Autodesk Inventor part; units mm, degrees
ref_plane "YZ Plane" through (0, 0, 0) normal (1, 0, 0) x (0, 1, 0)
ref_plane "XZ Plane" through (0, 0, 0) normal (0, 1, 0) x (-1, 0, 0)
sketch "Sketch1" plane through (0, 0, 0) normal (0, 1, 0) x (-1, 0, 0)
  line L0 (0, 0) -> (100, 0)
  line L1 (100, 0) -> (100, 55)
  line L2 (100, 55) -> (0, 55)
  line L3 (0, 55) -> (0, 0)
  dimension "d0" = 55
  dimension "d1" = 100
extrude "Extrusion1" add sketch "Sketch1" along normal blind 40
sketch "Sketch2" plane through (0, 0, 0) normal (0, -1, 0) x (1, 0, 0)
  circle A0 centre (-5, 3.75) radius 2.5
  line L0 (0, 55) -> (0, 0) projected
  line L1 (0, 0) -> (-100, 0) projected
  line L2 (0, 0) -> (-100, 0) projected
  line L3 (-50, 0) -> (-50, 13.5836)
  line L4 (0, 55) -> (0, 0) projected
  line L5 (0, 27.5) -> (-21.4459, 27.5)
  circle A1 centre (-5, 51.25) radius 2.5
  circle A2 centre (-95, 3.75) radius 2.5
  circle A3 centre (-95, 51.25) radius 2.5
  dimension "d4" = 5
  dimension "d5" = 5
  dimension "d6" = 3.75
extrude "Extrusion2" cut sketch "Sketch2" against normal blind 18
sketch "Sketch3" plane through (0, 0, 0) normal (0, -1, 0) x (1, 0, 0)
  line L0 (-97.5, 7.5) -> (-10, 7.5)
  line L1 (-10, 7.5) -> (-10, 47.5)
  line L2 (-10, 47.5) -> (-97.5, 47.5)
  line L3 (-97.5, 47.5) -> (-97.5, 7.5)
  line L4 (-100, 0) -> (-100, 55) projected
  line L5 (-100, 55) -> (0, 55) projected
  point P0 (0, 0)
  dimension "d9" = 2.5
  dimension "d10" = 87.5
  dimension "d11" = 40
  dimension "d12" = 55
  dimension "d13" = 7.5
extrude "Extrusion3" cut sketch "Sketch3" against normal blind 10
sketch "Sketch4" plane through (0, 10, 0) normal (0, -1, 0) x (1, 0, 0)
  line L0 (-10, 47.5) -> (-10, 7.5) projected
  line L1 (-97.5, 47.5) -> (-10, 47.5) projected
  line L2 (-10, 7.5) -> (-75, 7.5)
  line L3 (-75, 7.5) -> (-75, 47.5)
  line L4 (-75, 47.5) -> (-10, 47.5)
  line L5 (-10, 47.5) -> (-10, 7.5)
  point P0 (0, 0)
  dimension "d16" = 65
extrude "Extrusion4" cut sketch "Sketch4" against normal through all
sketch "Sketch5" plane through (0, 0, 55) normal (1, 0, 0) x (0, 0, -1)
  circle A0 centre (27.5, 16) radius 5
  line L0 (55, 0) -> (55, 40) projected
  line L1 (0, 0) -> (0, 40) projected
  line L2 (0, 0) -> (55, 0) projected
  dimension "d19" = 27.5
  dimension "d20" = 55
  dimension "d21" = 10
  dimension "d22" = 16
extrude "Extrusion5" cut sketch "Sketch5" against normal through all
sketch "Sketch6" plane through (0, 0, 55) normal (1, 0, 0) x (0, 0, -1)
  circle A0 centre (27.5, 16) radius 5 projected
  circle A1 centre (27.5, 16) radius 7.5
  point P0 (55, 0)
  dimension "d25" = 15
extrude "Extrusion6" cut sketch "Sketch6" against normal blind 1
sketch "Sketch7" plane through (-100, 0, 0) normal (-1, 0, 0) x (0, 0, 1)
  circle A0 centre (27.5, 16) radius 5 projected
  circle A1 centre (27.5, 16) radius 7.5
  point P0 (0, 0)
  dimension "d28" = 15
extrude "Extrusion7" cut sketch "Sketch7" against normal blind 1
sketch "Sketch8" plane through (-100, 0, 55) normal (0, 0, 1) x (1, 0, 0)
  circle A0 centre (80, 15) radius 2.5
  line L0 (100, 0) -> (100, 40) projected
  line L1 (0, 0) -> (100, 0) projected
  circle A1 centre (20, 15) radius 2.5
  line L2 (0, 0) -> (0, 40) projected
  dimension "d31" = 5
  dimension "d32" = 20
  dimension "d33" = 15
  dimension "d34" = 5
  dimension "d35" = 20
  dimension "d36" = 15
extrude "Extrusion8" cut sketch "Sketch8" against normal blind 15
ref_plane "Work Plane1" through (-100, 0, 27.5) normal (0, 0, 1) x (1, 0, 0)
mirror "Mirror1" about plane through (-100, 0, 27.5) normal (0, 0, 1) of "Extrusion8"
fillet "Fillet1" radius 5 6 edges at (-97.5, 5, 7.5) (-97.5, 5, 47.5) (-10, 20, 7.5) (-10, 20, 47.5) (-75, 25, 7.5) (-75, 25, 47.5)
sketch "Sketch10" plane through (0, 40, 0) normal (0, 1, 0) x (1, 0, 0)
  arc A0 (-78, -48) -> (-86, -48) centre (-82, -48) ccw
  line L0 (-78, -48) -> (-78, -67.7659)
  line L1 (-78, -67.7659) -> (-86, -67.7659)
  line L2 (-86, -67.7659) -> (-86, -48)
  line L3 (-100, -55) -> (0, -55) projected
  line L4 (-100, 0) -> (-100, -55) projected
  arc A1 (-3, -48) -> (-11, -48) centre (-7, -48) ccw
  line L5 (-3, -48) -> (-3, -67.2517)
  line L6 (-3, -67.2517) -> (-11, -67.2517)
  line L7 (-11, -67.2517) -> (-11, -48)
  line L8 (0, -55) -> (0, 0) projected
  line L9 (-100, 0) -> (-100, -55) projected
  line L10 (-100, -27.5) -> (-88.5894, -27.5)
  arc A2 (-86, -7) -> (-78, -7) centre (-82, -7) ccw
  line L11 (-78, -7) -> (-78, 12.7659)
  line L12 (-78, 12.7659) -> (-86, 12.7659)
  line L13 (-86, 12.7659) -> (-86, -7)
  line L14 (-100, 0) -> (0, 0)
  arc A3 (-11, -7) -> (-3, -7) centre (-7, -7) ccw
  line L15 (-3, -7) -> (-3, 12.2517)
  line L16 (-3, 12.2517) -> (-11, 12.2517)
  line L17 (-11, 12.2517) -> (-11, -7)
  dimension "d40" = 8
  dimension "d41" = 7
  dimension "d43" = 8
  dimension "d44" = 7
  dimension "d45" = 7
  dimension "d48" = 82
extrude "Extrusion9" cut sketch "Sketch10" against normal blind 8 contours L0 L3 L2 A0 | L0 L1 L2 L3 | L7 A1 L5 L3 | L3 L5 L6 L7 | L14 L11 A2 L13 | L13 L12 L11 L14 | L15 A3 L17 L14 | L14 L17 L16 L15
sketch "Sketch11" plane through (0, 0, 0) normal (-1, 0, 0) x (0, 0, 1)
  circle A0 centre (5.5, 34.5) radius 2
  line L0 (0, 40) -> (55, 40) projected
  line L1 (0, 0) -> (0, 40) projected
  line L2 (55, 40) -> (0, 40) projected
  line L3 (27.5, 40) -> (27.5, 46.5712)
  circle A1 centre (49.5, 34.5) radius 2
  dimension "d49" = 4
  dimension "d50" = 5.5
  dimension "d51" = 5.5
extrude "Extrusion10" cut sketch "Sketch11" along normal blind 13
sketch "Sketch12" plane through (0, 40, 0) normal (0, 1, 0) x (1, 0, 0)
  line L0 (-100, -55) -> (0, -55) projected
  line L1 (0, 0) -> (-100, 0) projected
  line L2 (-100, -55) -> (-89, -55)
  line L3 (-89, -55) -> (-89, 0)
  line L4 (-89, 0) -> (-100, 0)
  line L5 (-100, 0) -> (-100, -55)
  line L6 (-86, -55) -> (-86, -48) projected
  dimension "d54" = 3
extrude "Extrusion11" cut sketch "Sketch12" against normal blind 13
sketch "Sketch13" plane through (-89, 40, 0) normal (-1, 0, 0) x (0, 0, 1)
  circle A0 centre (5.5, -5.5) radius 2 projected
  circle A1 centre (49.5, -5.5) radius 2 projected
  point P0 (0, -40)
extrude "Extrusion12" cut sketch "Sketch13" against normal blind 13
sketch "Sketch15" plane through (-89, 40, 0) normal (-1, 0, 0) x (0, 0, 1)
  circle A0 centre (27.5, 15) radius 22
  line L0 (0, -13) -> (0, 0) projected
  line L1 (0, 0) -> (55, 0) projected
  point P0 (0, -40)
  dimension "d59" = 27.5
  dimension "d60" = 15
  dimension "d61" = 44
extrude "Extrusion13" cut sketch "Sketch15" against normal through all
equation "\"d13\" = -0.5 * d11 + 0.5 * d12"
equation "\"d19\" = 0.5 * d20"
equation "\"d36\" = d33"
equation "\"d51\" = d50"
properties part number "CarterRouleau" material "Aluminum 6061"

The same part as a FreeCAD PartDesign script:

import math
import FreeCAD as App
import Part
import Sketcher

V = App.Vector


def edges_at(feature, points):
    """Names of the edges that pass closest to the given points."""
    edges = feature.Shape.Edges
    near = lambda p: min(range(len(edges)), key=lambda i: edges[i].distToShape(Part.Vertex(*p))[0])
    return sorted({f"Edge{near(p) + 1}" for p in points})


def add_polygon(sketch, points):
    """Adds a closed chain of lines whose ends are joined by coincident constraints."""
    first, n = sketch.GeometryCount, len(points)
    for a, b in zip(points, points[1:] + points[:1]):
        sketch.addGeometry(Part.LineSegment(App.Vector(*a, 0), App.Vector(*b, 0)), False)
    for i in range(n):
        sketch.addConstraint(Sketcher.Constraint("Coincident", first + i, 2, first + (i + 1) % n, 1))

doc = App.newDocument("Part")
body = doc.addObject("PartDesign::Body", "Body")

# Sketch on XZ plane
sketch1 = body.newObject("Sketcher::SketchObject", "Sketch")
sketch1.AttachmentSupport = (doc.getObject("XZ_Plane"), [""])
sketch1.MapMode = "FlatFace"
add_polygon(sketch1, [(0, 55), (0, 0), (-100, 0), (-100, 55)])  # lines 0-3
sketch1.addConstraint(Sketcher.Constraint("Vertical", 0))
sketch1.addConstraint(Sketcher.Constraint("Horizontal", 1))
sketch1.addConstraint(Sketcher.Constraint("Vertical", 2))
sketch1.addConstraint(Sketcher.Constraint("Horizontal", 3))
sketch1.addConstraint(Sketcher.Constraint("Coincident", 0, 2, -1, 1))
sketch1.addConstraint(Sketcher.Constraint("DistanceX", 1, 2, 1, 1, 100.0))
sketch1.addConstraint(Sketcher.Constraint("DistanceY", 0, 2, 0, 1, 55.0))
pad1 = body.newObject("PartDesign::Pad", "Pad")
pad1.Profile = sketch1
pad1.Length = 40
pad1.Reversed = True

# Sketch on XZ plane
sketch2 = body.newObject("Sketcher::SketchObject", "Sketch001")
sketch2.AttachmentSupport = (doc.getObject("XZ_Plane"), [""])
sketch2.MapMode = "FlatFace"
sketch2.addGeometry(Part.Circle(V(-5, 3.8, 0), V(0, 0, 1), 2.5), False)
sketch2.addGeometry(Part.Circle(V(-5, 51.2, 0), V(0, 0, 1), 2.5), False)
sketch2.addGeometry(Part.Circle(V(-95, 3.8, 0), V(0, 0, 1), 2.5), False)
sketch2.addGeometry(Part.Circle(V(-95, 51.2, 0), V(0, 0, 1), 2.5), False)
sketch2.addConstraint(Sketcher.Constraint("Equal", 0, 1))
sketch2.addConstraint(Sketcher.Constraint("Equal", 1, 2))
sketch2.addConstraint(Sketcher.Constraint("Equal", 2, 3))
sketch2.addConstraint(Sketcher.Constraint("Horizontal", 0, 3, 2, 3))
sketch2.addConstraint(Sketcher.Constraint("Horizontal", 1, 3, 3, 3))
sketch2.addConstraint(Sketcher.Constraint("Vertical", 0, 3, 1, 3))
sketch2.addConstraint(Sketcher.Constraint("Vertical", 2, 3, 3, 3))
sketch2.addConstraint(Sketcher.Constraint("Diameter", 0, 5.0))
sketch2.addConstraint(Sketcher.Constraint("DistanceX", 0, 3, -1, 1, 5.0))
sketch2.addConstraint(Sketcher.Constraint("DistanceY", -1, 1, 0, 3, 3.75))
sketch2.addConstraint(Sketcher.Constraint("DistanceX", 2, 3, -1, 1, 95.0))
sketch2.addConstraint(Sketcher.Constraint("DistanceY", 0, 3, 1, 3, 47.5))
pocket1 = body.newObject("PartDesign::Pocket", "Pocket")
pocket1.Profile = sketch2
pocket1.Length = 18

# Sketch on XZ plane
sketch3 = body.newObject("Sketcher::SketchObject", "Sketch002")
sketch3.AttachmentSupport = (doc.getObject("XZ_Plane"), [""])
sketch3.MapMode = "FlatFace"
add_polygon(sketch3, [(-98, 48), (-98, 8), (-10, 8), (-10, 48)])  # lines 0-3
sketch3.addConstraint(Sketcher.Constraint("Vertical", 0))
sketch3.addConstraint(Sketcher.Constraint("Horizontal", 1))
sketch3.addConstraint(Sketcher.Constraint("Vertical", 2))
sketch3.addConstraint(Sketcher.Constraint("Horizontal", 3))
sketch3.addConstraint(Sketcher.Constraint("DistanceY", 0, 2, 0, 1, 40.0))
sketch3.addConstraint(Sketcher.Constraint("DistanceX", 1, 1, 1, 2, 87.5))
sketch3.addConstraint(Sketcher.Constraint("DistanceY", -1, 1, 0, 2, 7.5))
sketch3.addConstraint(Sketcher.Constraint("DistanceX", 1, 2, -1, 1, 10.0))
pocket2 = body.newObject("PartDesign::Pocket", "Pocket001")
pocket2.Profile = sketch3
pocket2.Length = 10

# Sketch on XZ plane
sketch4 = body.newObject("Sketcher::SketchObject", "Sketch003")
sketch4.AttachmentSupport = (doc.getObject("XZ_Plane"), [""])
sketch4.MapMode = "FlatFace"
sketch4.AttachmentOffset = App.Placement(V(0, 0, -10), App.Rotation())
add_polygon(sketch4, [(-10, 8), (-10, 48), (-75, 48), (-75, 8)])  # lines 0-3
sketch4.addConstraint(Sketcher.Constraint("Vertical", 0))
sketch4.addConstraint(Sketcher.Constraint("Horizontal", 1))
sketch4.addConstraint(Sketcher.Constraint("Vertical", 2))
sketch4.addConstraint(Sketcher.Constraint("Horizontal", 3))
sketch4.addConstraint(Sketcher.Constraint("DistanceX", 1, 2, 1, 1, 65.0))
sketch4.addConstraint(Sketcher.Constraint("DistanceY", 0, 1, 0, 2, 40.0))
sketch4.addConstraint(Sketcher.Constraint("DistanceX", 0, 2, -1, 1, 10.0))
sketch4.addConstraint(Sketcher.Constraint("DistanceY", -1, 1, 0, 2, 47.5))
pocket3 = body.newObject("PartDesign::Pocket", "Pocket002")
pocket3.Profile = sketch4
pocket3.Type = "ThroughAll"

# Sketch on YZ plane
sketch5 = body.newObject("Sketcher::SketchObject", "Sketch004")
sketch5.AttachmentSupport = (doc.getObject("YZ_Plane"), [""])
sketch5.MapMode = "FlatFace"
sketch5.addGeometry(Part.Circle(V(16, 28, 0), V(0, 0, 1), 5), False)
sketch5.addConstraint(Sketcher.Constraint("Diameter", 0, 10.0))
sketch5.addConstraint(Sketcher.Constraint("DistanceX", -1, 1, 0, 3, 16.0))
sketch5.addConstraint(Sketcher.Constraint("DistanceY", -1, 1, 0, 3, 27.5))
pocket4 = body.newObject("PartDesign::Pocket", "Pocket003")
pocket4.Profile = sketch5
pocket4.Type = "ThroughAll"

# Sketch on YZ plane
sketch6 = body.newObject("Sketcher::SketchObject", "Sketch005")
sketch6.AttachmentSupport = (doc.getObject("YZ_Plane"), [""])
sketch6.MapMode = "FlatFace"
sketch6.addGeometry(Part.Circle(V(16, 28, 0), V(0, 0, 1), 8), False)
sketch6.addGeometry(Part.Circle(V(16, 28, 0), V(0, 0, 1), 5), False)
sketch6.addConstraint(Sketcher.Constraint("Coincident", 1, 3, 0, 3))
sketch6.addConstraint(Sketcher.Constraint("Diameter", 0, 15.0))
sketch6.addConstraint(Sketcher.Constraint("Diameter", 1, 10.0))
sketch6.addConstraint(Sketcher.Constraint("DistanceX", -1, 1, 0, 3, 16.0))
sketch6.addConstraint(Sketcher.Constraint("DistanceY", -1, 1, 0, 3, 27.5))
pocket5 = body.newObject("PartDesign::Pocket", "Pocket004")
pocket5.Profile = sketch6
pocket5.Length = 1

# Sketch on YZ plane
sketch7 = body.newObject("Sketcher::SketchObject", "Sketch006")
sketch7.AttachmentSupport = (doc.getObject("YZ_Plane"), [""])
sketch7.MapMode = "FlatFace"
sketch7.AttachmentOffset = App.Placement(V(0, 0, -100), App.Rotation())
sketch7.addGeometry(Part.Circle(V(16, 28, 0), V(0, 0, 1), 8), False)
sketch7.addGeometry(Part.Circle(V(16, 28, 0), V(0, 0, 1), 5), False)
sketch7.addConstraint(Sketcher.Constraint("Coincident", 1, 3, 0, 3))
sketch7.addConstraint(Sketcher.Constraint("Diameter", 0, 15.0))
sketch7.addConstraint(Sketcher.Constraint("Diameter", 1, 10.0))
sketch7.addConstraint(Sketcher.Constraint("DistanceX", -1, 1, 0, 3, 16.0))
sketch7.addConstraint(Sketcher.Constraint("DistanceY", -1, 1, 0, 3, 27.5))
pocket6 = body.newObject("PartDesign::Pocket", "Pocket005")
pocket6.Profile = sketch7
pocket6.Length = 1
pocket6.Reversed = True

# Sketch on XY plane
sketch8 = body.newObject("Sketcher::SketchObject", "Sketch007")
sketch8.AttachmentSupport = (doc.getObject("XY_Plane"), [""])
sketch8.MapMode = "FlatFace"
sketch8.AttachmentOffset = App.Placement(V(0, 0, 55), App.Rotation())
sketch8.addGeometry(Part.Circle(V(-20, 15, 0), V(0, 0, 1), 2.5), False)
sketch8.addGeometry(Part.Circle(V(-80, 15, 0), V(0, 0, 1), 2.5), False)
sketch8.addConstraint(Sketcher.Constraint("Equal", 0, 1))
sketch8.addConstraint(Sketcher.Constraint("Horizontal", 0, 3, 1, 3))
sketch8.addConstraint(Sketcher.Constraint("Diameter", 0, 5.0))
sketch8.addConstraint(Sketcher.Constraint("DistanceX", 0, 3, -1, 1, 20.0))
sketch8.addConstraint(Sketcher.Constraint("DistanceY", -1, 1, 0, 3, 15.0))
sketch8.addConstraint(Sketcher.Constraint("DistanceX", 1, 3, -1, 1, 80.0))
pocket7 = body.newObject("PartDesign::Pocket", "Pocket006")
pocket7.Profile = sketch8
pocket7.Length = 15
doc.recompute()

datumplane = body.newObject("PartDesign::Plane", "DatumPlane")
datumplane.AttachmentSupport = (doc.getObject("XY_Plane"), [""])
datumplane.MapMode = "FlatFace"
datumplane.AttachmentOffset = App.Placement(V(0, 0, 27.5), App.Rotation())
mirrored = body.newObject("PartDesign::Mirrored", "Mirrored")
mirrored.Originals = [pocket7]
mirrored.MirrorPlane = (datumplane, [""])
body.Tip = mirrored
doc.recompute()

fillet = body.newObject("PartDesign::Fillet", "Fillet")
fillet.Base = (mirrored, edges_at(mirrored, [
    (-97.5, 5, 7.5),
    (-97.5, 5, 47.5),
    (-10, 20, 7.5),
    (-10, 20, 47.5),
    (-75, 25, 7.5),
    (-75, 25, 47.5),
]))
fillet.Radius = 5

# Sketch on XZ plane
sketch9 = body.newObject("Sketcher::SketchObject", "Sketch008")
sketch9.AttachmentSupport = (doc.getObject("XZ_Plane"), [""])
sketch9.MapMode = "FlatFace"
sketch9.AttachmentOffset = App.Placement(V(0, 0, -40), App.Rotation())
sketch9.addGeometry(Part.ArcOfCircle(Part.Circle(V(-82, 48, 0), V(0, 0, 1), 4), math.radians(180), math.radians(360)), False)
sketch9.addGeometry(Part.LineSegment(V(-86, 48, 0), V(-86, 67.8, 0)), False)
sketch9.addGeometry(Part.LineSegment(V(-86, 67.8, 0), V(-78, 67.8, 0)), False)
sketch9.addGeometry(Part.LineSegment(V(-78, 67.8, 0), V(-78, 48, 0)), False)
sketch9.addGeometry(Part.LineSegment(V(-11, 48, 0), V(-11, 67.3, 0)), False)
sketch9.addGeometry(Part.LineSegment(V(-11, 67.3, 0), V(-3, 67.3, 0)), False)
sketch9.addGeometry(Part.LineSegment(V(-3, 67.3, 0), V(-3, 48, 0)), False)
sketch9.addGeometry(Part.ArcOfCircle(Part.Circle(V(-7, 48, 0), V(0, 0, 1), 4), math.radians(180), math.radians(360)), False)
sketch9.addGeometry(Part.LineSegment(V(-78, 7, 0), V(-78, -12.8, 0)), False)
sketch9.addGeometry(Part.LineSegment(V(-78, -12.8, 0), V(-86, -12.8, 0)), False)
sketch9.addGeometry(Part.LineSegment(V(-86, -12.8, 0), V(-86, 7, 0)), False)
sketch9.addGeometry(Part.ArcOfCircle(Part.Circle(V(-82, 7, 0), V(0, 0, 1), 4), math.radians(0), math.radians(180)), False)
sketch9.addGeometry(Part.LineSegment(V(-3, 7, 0), V(-3, -12.3, 0)), False)
sketch9.addGeometry(Part.LineSegment(V(-3, -12.3, 0), V(-11, -12.3, 0)), False)
sketch9.addGeometry(Part.LineSegment(V(-11, -12.3, 0), V(-11, 7, 0)), False)
sketch9.addGeometry(Part.ArcOfCircle(Part.Circle(V(-7, 7, 0), V(0, 0, 1), 4), math.radians(0), math.radians(180)), False)
sketch9.addConstraint(Sketcher.Constraint("Tangent", 0, 1, 1, 1))
sketch9.addConstraint(Sketcher.Constraint("Coincident", 1, 2, 2, 1))
sketch9.addConstraint(Sketcher.Constraint("Coincident", 2, 2, 3, 1))
sketch9.addConstraint(Sketcher.Constraint("Tangent", 3, 2, 0, 2))
sketch9.addConstraint(Sketcher.Constraint("Coincident", 4, 2, 5, 1))
sketch9.addConstraint(Sketcher.Constraint("Coincident", 5, 2, 6, 1))
sketch9.addConstraint(Sketcher.Constraint("Tangent", 6, 2, 7, 2))
sketch9.addConstraint(Sketcher.Constraint("Tangent", 7, 1, 4, 1))
sketch9.addConstraint(Sketcher.Constraint("Coincident", 8, 2, 9, 1))
sketch9.addConstraint(Sketcher.Constraint("Coincident", 9, 2, 10, 1))
sketch9.addConstraint(Sketcher.Constraint("Tangent", 10, 2, 11, 2))
sketch9.addConstraint(Sketcher.Constraint("Tangent", 11, 1, 8, 1))
sketch9.addConstraint(Sketcher.Constraint("Coincident", 12, 2, 13, 1))
sketch9.addConstraint(Sketcher.Constraint("Coincident", 13, 2, 14, 1))
sketch9.addConstraint(Sketcher.Constraint("Tangent", 14, 2, 15, 2))
sketch9.addConstraint(Sketcher.Constraint("Tangent", 15, 1, 12, 1))
sketch9.addConstraint(Sketcher.Constraint("Vertical", 1))
sketch9.addConstraint(Sketcher.Constraint("Horizontal", 2))
sketch9.addConstraint(Sketcher.Constraint("Vertical", 3))
sketch9.addConstraint(Sketcher.Constraint("Vertical", 4))
sketch9.addConstraint(Sketcher.Constraint("Horizontal", 5))
sketch9.addConstraint(Sketcher.Constraint("Vertical", 6))
sketch9.addConstraint(Sketcher.Constraint("Vertical", 8))
sketch9.addConstraint(Sketcher.Constraint("Horizontal", 9))
sketch9.addConstraint(Sketcher.Constraint("Vertical", 10))
sketch9.addConstraint(Sketcher.Constraint("Vertical", 12))
sketch9.addConstraint(Sketcher.Constraint("Horizontal", 13))
sketch9.addConstraint(Sketcher.Constraint("Vertical", 14))
sketch9.addConstraint(Sketcher.Constraint("Equal", 0, 7))
sketch9.addConstraint(Sketcher.Constraint("Equal", 7, 11))
sketch9.addConstraint(Sketcher.Constraint("Equal", 11, 15))
sketch9.addConstraint(Sketcher.Constraint("Horizontal", 0, 3, 7, 3))
sketch9.addConstraint(Sketcher.Constraint("Horizontal", 11, 3, 15, 3))
sketch9.addConstraint(Sketcher.Constraint("Vertical", 0, 3, 11, 3))
sketch9.addConstraint(Sketcher.Constraint("Vertical", 7, 3, 15, 3))
sketch9.addConstraint(Sketcher.Constraint("Equal", 3, 8))
sketch9.addConstraint(Sketcher.Constraint("Equal", 6, 12))
sketch9.addConstraint(Sketcher.Constraint("Radius", 0, 4.0))
sketch9.addConstraint(Sketcher.Constraint("DistanceX", 0, 3, -1, 1, 82.0))
sketch9.addConstraint(Sketcher.Constraint("DistanceX", 7, 3, -1, 1, 7.0))
sketch9.addConstraint(Sketcher.Constraint("DistanceY", -1, 1, 11, 3, 7.0))
sketch9.addConstraint(Sketcher.Constraint("DistanceY", -1, 1, 0, 3, 48.0))
sketch9.addConstraint(Sketcher.Constraint("DistanceY", 1, 1, 1, 2, 19.766))
sketch9.addConstraint(Sketcher.Constraint("DistanceY", 4, 1, 4, 2, 19.2517))
pocket8 = body.newObject("PartDesign::Pocket", "Pocket007")
pocket8.Profile = sketch9
pocket8.Length = 8
pocket8.Reversed = True

# Sketch on YZ plane
sketch10 = body.newObject("Sketcher::SketchObject", "Sketch009")
sketch10.AttachmentSupport = (doc.getObject("YZ_Plane"), [""])
sketch10.MapMode = "FlatFace"
sketch10.addGeometry(Part.Circle(V(34.5, 5.5, 0), V(0, 0, 1), 2), False)
sketch10.addGeometry(Part.Circle(V(34.5, 49.5, 0), V(0, 0, 1), 2), False)
sketch10.addConstraint(Sketcher.Constraint("Equal", 0, 1))
sketch10.addConstraint(Sketcher.Constraint("Vertical", 0, 3, 1, 3))
sketch10.addConstraint(Sketcher.Constraint("Diameter", 0, 4.0))
sketch10.addConstraint(Sketcher.Constraint("DistanceY", -1, 1, 0, 3, 5.5))
sketch10.addConstraint(Sketcher.Constraint("DistanceY", 0, 3, 1, 3, 44.0))
sketch10.addConstraint(Sketcher.Constraint("DistanceX", -1, 1, 0, 3, 34.5))
pocket9 = body.newObject("PartDesign::Pocket", "Pocket008")
pocket9.Profile = sketch10
pocket9.Length = 13

# Sketch on XZ plane
sketch11 = body.newObject("Sketcher::SketchObject", "Sketch010")
sketch11.AttachmentSupport = (doc.getObject("XZ_Plane"), [""])
sketch11.MapMode = "FlatFace"
sketch11.AttachmentOffset = App.Placement(V(0, 0, -40), App.Rotation())
add_polygon(sketch11, [(-100, 0), (-100, 55), (-89, 55), (-89, 0)])  # lines 0-3
sketch11.addConstraint(Sketcher.Constraint("Vertical", 0))
sketch11.addConstraint(Sketcher.Constraint("Horizontal", 1))
sketch11.addConstraint(Sketcher.Constraint("Vertical", 2))
sketch11.addConstraint(Sketcher.Constraint("Horizontal", 3))
sketch11.addConstraint(Sketcher.Constraint("PointOnObject", 2, 2, -1))
sketch11.addConstraint(Sketcher.Constraint("DistanceX", 1, 1, 1, 2, 11.0))
sketch11.addConstraint(Sketcher.Constraint("DistanceY", 0, 1, 0, 2, 55.0))
sketch11.addConstraint(Sketcher.Constraint("DistanceX", 0, 2, -1, 1, 100.0))
pocket10 = body.newObject("PartDesign::Pocket", "Pocket009")
pocket10.Profile = sketch11
pocket10.Length = 13
pocket10.Reversed = True

# Sketch on YZ plane
sketch12 = body.newObject("Sketcher::SketchObject", "Sketch011")
sketch12.AttachmentSupport = (doc.getObject("YZ_Plane"), [""])
sketch12.MapMode = "FlatFace"
sketch12.AttachmentOffset = App.Placement(V(0, 0, -89), App.Rotation())
sketch12.addGeometry(Part.Circle(V(34.5, 5.5, 0), V(0, 0, 1), 2), False)
sketch12.addGeometry(Part.Circle(V(34.5, 49.5, 0), V(0, 0, 1), 2), False)
sketch12.addConstraint(Sketcher.Constraint("Equal", 0, 1))
sketch12.addConstraint(Sketcher.Constraint("Vertical", 0, 3, 1, 3))
sketch12.addConstraint(Sketcher.Constraint("Diameter", 0, 4.0))
sketch12.addConstraint(Sketcher.Constraint("DistanceY", 0, 3, 1, 3, 44.0))
sketch12.addConstraint(Sketcher.Constraint("DistanceX", -1, 1, 0, 3, 34.5))
sketch12.addConstraint(Sketcher.Constraint("DistanceY", -1, 1, 0, 3, 5.5))
pocket11 = body.newObject("PartDesign::Pocket", "Pocket010")
pocket11.Profile = sketch12
pocket11.Length = 13
pocket11.Reversed = True

# Sketch on YZ plane
sketch13 = body.newObject("Sketcher::SketchObject", "Sketch012")
sketch13.AttachmentSupport = (doc.getObject("YZ_Plane"), [""])
sketch13.MapMode = "FlatFace"
sketch13.AttachmentOffset = App.Placement(V(0, 0, -89), App.Rotation())
sketch13.addGeometry(Part.Circle(V(55, 28, 0), V(0, 0, 1), 22), False)
sketch13.addConstraint(Sketcher.Constraint("Diameter", 0, 44.0))
sketch13.addConstraint(Sketcher.Constraint("DistanceY", -1, 1, 0, 3, 27.5))
sketch13.addConstraint(Sketcher.Constraint("DistanceX", -1, 1, 0, 3, 55.0))
pocket12 = body.newObject("PartDesign::Pocket", "Pocket011")
pocket12.Profile = sketch13
pocket12.Type = "ThroughAll"
pocket12.Reversed = True

doc.recompute()
